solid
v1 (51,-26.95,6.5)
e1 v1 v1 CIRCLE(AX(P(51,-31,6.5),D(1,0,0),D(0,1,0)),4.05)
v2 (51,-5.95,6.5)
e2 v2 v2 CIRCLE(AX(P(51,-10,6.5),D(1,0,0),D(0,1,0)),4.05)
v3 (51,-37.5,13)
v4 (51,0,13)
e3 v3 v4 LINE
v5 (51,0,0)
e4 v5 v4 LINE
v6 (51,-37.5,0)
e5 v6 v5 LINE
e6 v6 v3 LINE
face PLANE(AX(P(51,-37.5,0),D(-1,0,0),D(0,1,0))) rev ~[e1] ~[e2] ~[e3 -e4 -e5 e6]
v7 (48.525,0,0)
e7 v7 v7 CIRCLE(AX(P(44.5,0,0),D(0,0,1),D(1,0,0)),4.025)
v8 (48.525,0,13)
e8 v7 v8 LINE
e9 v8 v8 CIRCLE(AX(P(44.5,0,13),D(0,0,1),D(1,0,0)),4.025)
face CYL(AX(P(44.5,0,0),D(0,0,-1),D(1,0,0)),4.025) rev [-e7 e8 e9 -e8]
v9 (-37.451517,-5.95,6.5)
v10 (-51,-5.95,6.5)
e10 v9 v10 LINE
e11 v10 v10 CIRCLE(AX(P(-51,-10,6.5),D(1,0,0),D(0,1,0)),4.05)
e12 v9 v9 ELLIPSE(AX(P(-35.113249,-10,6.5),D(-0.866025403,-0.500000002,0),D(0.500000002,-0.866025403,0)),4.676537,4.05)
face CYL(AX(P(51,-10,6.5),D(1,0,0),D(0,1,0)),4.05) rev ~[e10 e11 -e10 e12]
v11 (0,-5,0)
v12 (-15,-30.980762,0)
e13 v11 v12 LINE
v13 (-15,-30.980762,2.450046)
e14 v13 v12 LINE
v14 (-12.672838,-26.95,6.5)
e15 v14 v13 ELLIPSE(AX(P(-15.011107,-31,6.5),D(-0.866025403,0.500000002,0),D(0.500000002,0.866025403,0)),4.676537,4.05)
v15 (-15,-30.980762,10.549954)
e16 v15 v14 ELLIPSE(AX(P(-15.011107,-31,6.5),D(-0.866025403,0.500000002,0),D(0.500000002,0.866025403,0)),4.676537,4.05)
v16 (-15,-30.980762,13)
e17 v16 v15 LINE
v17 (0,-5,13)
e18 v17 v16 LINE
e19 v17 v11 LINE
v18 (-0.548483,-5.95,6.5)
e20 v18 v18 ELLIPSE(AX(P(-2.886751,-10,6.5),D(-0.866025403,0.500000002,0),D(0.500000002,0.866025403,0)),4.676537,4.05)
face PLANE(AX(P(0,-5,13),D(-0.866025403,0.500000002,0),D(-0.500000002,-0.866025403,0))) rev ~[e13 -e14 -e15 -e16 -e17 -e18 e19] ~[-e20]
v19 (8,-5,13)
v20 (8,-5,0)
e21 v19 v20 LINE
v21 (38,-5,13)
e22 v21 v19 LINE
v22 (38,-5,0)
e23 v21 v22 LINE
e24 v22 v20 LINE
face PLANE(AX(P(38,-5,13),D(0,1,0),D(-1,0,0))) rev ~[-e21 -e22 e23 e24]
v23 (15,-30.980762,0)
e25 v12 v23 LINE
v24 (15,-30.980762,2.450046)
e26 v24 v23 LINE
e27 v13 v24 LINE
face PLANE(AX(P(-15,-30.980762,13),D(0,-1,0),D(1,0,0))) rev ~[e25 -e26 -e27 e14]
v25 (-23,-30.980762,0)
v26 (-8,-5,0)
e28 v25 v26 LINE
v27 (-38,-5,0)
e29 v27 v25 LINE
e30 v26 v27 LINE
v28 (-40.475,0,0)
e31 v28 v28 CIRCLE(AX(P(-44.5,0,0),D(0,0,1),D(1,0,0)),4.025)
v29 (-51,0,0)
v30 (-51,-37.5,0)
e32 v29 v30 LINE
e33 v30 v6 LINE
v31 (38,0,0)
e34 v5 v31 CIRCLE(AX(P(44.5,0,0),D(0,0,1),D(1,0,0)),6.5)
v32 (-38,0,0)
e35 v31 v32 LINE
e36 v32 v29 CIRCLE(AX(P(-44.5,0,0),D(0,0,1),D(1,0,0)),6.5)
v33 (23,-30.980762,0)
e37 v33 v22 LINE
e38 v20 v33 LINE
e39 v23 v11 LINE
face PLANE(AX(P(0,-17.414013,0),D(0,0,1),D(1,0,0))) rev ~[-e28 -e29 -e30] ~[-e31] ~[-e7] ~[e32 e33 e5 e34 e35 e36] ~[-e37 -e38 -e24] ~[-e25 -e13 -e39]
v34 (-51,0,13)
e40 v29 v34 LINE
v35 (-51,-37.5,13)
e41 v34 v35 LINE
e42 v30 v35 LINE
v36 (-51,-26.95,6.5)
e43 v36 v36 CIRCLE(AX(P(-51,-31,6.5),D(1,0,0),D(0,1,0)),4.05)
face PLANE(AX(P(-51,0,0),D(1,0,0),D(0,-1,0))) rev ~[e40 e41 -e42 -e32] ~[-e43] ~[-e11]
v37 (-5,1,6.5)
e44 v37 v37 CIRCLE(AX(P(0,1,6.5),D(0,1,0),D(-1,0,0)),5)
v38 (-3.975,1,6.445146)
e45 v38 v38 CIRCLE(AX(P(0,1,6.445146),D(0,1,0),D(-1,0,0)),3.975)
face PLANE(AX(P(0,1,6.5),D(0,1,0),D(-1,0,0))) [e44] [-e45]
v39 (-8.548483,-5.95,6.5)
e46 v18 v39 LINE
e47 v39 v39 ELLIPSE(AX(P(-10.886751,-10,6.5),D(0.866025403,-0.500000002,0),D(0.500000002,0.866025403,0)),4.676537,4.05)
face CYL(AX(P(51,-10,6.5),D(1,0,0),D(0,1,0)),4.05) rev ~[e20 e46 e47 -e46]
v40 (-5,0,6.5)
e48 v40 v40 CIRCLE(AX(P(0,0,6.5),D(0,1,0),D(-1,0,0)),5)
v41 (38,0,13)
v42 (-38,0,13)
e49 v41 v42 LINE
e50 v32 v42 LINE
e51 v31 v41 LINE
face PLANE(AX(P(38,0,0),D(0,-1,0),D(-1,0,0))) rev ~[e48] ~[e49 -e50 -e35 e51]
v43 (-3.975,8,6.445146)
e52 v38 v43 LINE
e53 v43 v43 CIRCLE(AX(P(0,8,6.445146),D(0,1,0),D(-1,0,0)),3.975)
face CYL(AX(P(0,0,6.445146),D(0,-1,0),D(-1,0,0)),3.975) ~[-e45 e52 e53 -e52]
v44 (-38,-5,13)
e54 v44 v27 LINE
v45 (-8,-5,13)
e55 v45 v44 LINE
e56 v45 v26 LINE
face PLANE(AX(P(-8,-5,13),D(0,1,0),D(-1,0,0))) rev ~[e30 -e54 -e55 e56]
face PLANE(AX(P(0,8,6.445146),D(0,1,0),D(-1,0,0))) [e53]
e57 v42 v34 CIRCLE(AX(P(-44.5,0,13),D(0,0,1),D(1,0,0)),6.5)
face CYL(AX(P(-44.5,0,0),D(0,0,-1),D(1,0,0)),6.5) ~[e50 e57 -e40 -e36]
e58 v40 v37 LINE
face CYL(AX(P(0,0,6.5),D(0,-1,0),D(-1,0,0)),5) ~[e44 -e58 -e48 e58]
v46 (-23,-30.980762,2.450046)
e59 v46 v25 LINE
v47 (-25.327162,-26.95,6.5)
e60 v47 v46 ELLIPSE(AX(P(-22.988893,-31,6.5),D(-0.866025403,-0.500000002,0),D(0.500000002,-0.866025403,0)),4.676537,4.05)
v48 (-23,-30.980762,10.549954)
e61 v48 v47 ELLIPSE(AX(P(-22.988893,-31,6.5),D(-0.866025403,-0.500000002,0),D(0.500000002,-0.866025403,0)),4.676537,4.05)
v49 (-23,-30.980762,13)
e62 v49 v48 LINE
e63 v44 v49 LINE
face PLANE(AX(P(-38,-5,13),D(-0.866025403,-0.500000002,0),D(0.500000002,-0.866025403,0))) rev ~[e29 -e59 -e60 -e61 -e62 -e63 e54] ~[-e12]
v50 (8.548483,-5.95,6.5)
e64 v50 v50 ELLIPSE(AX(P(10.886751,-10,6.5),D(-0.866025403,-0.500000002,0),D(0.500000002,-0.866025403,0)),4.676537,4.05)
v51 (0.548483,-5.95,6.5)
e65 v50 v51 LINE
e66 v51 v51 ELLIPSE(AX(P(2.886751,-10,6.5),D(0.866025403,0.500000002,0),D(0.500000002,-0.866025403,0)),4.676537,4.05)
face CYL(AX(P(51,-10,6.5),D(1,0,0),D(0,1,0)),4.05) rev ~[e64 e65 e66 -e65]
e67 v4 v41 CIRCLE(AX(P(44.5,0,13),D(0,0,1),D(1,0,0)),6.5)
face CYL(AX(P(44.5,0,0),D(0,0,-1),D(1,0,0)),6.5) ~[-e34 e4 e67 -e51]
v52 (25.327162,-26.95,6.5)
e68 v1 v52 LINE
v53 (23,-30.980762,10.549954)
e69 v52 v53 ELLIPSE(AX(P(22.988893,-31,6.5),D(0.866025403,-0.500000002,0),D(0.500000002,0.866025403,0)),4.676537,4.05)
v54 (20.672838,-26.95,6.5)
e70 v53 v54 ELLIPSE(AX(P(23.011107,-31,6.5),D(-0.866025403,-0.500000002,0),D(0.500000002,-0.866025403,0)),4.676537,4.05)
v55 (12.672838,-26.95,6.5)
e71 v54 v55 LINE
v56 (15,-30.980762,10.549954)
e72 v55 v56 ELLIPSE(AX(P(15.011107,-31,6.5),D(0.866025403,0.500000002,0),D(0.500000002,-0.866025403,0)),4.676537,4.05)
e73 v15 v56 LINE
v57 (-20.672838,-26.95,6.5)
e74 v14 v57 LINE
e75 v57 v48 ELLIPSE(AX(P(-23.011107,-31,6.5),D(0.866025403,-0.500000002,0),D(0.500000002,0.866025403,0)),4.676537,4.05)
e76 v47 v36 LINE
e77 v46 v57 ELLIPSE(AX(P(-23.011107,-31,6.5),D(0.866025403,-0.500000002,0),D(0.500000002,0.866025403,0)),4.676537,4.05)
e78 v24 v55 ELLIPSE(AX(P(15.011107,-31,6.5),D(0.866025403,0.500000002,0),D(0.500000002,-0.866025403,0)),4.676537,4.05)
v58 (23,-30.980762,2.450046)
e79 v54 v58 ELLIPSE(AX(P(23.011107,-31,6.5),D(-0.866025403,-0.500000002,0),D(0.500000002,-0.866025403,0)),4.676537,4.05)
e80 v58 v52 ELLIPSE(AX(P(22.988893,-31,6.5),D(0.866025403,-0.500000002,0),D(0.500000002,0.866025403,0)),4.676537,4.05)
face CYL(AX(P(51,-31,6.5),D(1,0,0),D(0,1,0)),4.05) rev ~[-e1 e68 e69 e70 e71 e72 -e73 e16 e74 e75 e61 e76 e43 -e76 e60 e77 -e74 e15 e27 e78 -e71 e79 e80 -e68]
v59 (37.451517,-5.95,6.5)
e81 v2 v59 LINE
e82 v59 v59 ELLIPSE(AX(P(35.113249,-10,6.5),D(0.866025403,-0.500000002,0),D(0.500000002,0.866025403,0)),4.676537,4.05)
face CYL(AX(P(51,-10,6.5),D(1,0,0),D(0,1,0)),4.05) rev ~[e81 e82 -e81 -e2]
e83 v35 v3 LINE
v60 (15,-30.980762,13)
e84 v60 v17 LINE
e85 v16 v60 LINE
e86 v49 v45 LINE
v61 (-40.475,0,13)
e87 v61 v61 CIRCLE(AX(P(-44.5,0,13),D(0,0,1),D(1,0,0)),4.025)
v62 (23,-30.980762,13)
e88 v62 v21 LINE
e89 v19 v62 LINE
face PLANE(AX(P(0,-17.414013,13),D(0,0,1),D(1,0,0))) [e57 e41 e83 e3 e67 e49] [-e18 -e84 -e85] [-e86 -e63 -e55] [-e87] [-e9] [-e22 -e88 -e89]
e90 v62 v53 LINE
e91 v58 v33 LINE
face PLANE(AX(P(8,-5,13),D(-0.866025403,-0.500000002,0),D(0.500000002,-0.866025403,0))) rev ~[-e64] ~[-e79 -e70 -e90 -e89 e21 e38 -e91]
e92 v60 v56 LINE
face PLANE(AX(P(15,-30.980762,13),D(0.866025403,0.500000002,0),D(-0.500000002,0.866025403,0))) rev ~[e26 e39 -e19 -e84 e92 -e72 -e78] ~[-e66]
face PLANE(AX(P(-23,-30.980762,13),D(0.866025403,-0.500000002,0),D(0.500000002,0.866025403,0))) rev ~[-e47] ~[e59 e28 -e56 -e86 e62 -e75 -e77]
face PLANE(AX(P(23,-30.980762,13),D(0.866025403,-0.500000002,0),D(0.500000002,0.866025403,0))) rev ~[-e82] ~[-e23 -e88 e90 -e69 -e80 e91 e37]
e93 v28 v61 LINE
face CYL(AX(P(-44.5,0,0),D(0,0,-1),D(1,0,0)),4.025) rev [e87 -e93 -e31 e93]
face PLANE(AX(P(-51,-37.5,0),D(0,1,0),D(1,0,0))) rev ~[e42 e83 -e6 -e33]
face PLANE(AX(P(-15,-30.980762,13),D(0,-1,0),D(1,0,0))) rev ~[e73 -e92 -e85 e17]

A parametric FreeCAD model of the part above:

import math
import FreeCAD as App
import Part
import Sketcher
Q = App.Units.Quantity

doc = App.newDocument("Part")
body = doc.addObject("PartDesign::Body", "Body")

# Sketch on XY plane
sketch1 = doc.addObject("Sketcher::SketchObject", "Sketch")
body.addObject(sketch1)
sketch1.AttachmentSupport = (doc.XY_Plane, [""])
sketch1.MapMode = "FlatFace"
sketch1.addGeometry(Part.LineSegment(App.Vector(38, 0, 0), App.Vector(-38, 0, 0)), False)
sketch1.addGeometry(Part.ArcOfCircle(Part.Circle(App.Vector(-44.5, 0, 0), App.Vector(0, 0, 1), 6.5), math.radians(0), math.radians(180)), False)
sketch1.addGeometry(Part.LineSegment(App.Vector(-51, 0, 0), App.Vector(-51, -37.5, 0)), False)
sketch1.addGeometry(Part.LineSegment(App.Vector(-51, -37.5, 0), App.Vector(51, -37.5, 0)), False)
sketch1.addGeometry(Part.LineSegment(App.Vector(51, -37.5, 0), App.Vector(51, 0, 0)), False)
sketch1.addGeometry(Part.ArcOfCircle(Part.Circle(App.Vector(44.5, 0, 0), App.Vector(0, 0, 1), 6.5), math.radians(0), math.radians(180)), False)
sketch1.addGeometry(Part.Circle(App.Vector(-44.5, 0, 0), App.Vector(0, 0, 1), 4), False)
sketch1.addGeometry(Part.Circle(App.Vector(44.5, 0, 0), App.Vector(0, 0, 1), 4), False)
sketch1.addConstraint(Sketcher.Constraint("Coincident", 0, 2, 1, 1))
sketch1.addConstraint(Sketcher.Constraint("Tangent", 1, 2, 2, 1))
sketch1.addConstraint(Sketcher.Constraint("Coincident", 2, 2, 3, 1))
sketch1.addConstraint(Sketcher.Constraint("Coincident", 3, 2, 4, 1))
sketch1.addConstraint(Sketcher.Constraint("Tangent", 4, 2, 5, 1))
sketch1.addConstraint(Sketcher.Constraint("Coincident", 5, 2, 0, 1))
sketch1.addConstraint(Sketcher.Constraint("Horizontal", 0))
sketch1.addConstraint(Sketcher.Constraint("Vertical", 2))
sketch1.addConstraint(Sketcher.Constraint("Horizontal", 3))
sketch1.addConstraint(Sketcher.Constraint("Vertical", 4))
sketch1.addConstraint(Sketcher.Constraint("Coincident", 6, 3, 1, 3))
sketch1.addConstraint(Sketcher.Constraint("Coincident", 7, 3, 5, 3))
sketch1.addConstraint(Sketcher.Constraint("Equal", 1, 5))
sketch1.addConstraint(Sketcher.Constraint("Equal", 6, 7))
sketch1.addConstraint(Sketcher.Constraint("Symmetric", 1, 3, 5, 3, -1, 1))
sketch1.addConstraint(Sketcher.Constraint("PointOnObject", 1, 3, -1))
sketch1.addConstraint(Sketcher.Constraint("PointOnObject", 0, 2, -1))
sketch1.addConstraint(Sketcher.Constraint("Radius", 1, 6.5))
sketch1.addConstraint(Sketcher.Constraint("Diameter", 6, 8.05))
sketch1.addConstraint(Sketcher.Constraint("DistanceX", 0, 2, 0, 1, 76.0))
sketch1.addConstraint(Sketcher.Constraint("DistanceY", 2, 2, 2, 1, 37.5))
pad1 = doc.addObject("PartDesign::Pad", "Pad")
body.addObject(pad1)
pad1.Profile = sketch1
pad1.Length = 13

# Sketch on YZ plane
sketch2 = doc.addObject("Sketcher::SketchObject", "Sketch001")
body.addObject(sketch2)
sketch2.AttachmentSupport = (doc.YZ_Plane, [""])
sketch2.MapMode = "FlatFace"
sketch2.AttachmentOffset = App.Placement(App.Vector(0, 0, 51), App.Rotation())
sketch2.addGeometry(Part.Circle(App.Vector(-10, 6.5, 0), App.Vector(0, 0, 1), 4), False)
sketch2.addGeometry(Part.Circle(App.Vector(-31, 6.5, 0), App.Vector(0, 0, 1), 4), False)
sketch2.addConstraint(Sketcher.Constraint("Equal", 0, 1))
sketch2.addConstraint(Sketcher.Constraint("Horizontal", 0, 3, 1, 3))
sketch2.addConstraint(Sketcher.Constraint("Diameter", 0, 8.1))
sketch2.addConstraint(Sketcher.Constraint("DistanceX", 0, 3, -1, 1, 10.0))
sketch2.addConstraint(Sketcher.Constraint("DistanceX", 1, 3, -1, 1, 31.0))
sketch2.addConstraint(Sketcher.Constraint("DistanceY", -1, 1, 0, 3, 6.5))
pocket1 = doc.addObject("PartDesign::Pocket", "Pocket")
body.addObject(pocket1)
pocket1.Profile = sketch2
pocket1.Length = 200

# Sketch on XY plane
sketch3 = doc.addObject("Sketcher::SketchObject", "Sketch002")
body.addObject(sketch3)
sketch3.AttachmentSupport = (doc.XY_Plane, [""])
sketch3.MapMode = "FlatFace"
sketch3.AttachmentOffset = App.Placement(App.Vector(0, 0, 13), App.Rotation())
sketch3.addGeometry(Part.LineSegment(App.Vector(-23, -31, 0), App.Vector(-8, -5, 0)), False)
sketch3.addGeometry(Part.LineSegment(App.Vector(-8, -5, 0), App.Vector(-38, -5, 0)), False)
sketch3.addGeometry(Part.LineSegment(App.Vector(-38, -5, 0), App.Vector(-23, -31, 0)), False)
sketch3.addGeometry(Part.LineSegment(App.Vector(15, -31, 0), App.Vector(0, -5, 0)), False)
sketch3.addGeometry(Part.LineSegment(App.Vector(0, -5, 0), App.Vector(-15, -31, 0)), False)
sketch3.addGeometry(Part.LineSegment(App.Vector(-15, -31, 0), App.Vector(15, -31, 0)), False)
sketch3.addGeometry(Part.LineSegment(App.Vector(23, -31, 0), App.Vector(38, -5, 0)), False)
sketch3.addGeometry(Part.LineSegment(App.Vector(38, -5, 0), App.Vector(8, -5, 0)), False)
sketch3.addGeometry(Part.LineSegment(App.Vector(8, -5, 0), App.Vector(23, -31, 0)), False)
sketch3.addConstraint(Sketcher.Constraint("Coincident", 0, 2, 1, 1))
sketch3.addConstraint(Sketcher.Constraint("Coincident", 1, 2, 2, 1))
sketch3.addConstraint(Sketcher.Constraint("Coincident", 2, 2, 0, 1))
sketch3.addConstraint(Sketcher.Constraint("Coincident", 3, 2, 4, 1))
sketch3.addConstraint(Sketcher.Constraint("Coincident", 4, 2, 5, 1))
sketch3.addConstraint(Sketcher.Constraint("Coincident", 5, 2, 3, 1))
sketch3.addConstraint(Sketcher.Constraint("Coincident", 6, 2, 7, 1))
sketch3.addConstraint(Sketcher.Constraint("Coincident", 7, 2, 8, 1))
sketch3.addConstraint(Sketcher.Constraint("Coincident", 8, 2, 6, 1))
sketch3.addConstraint(Sketcher.Constraint("Horizontal", 1))
sketch3.addConstraint(Sketcher.Constraint("Horizontal", 5))
sketch3.addConstraint(Sketcher.Constraint("Horizontal", 7))
sketch3.addConstraint(Sketcher.Constraint("Symmetric", 1, 2, 6, 2, -2))
sketch3.addConstraint(Sketcher.Constraint("Symmetric", 2, 2, 8, 2, -2))
sketch3.addConstraint(Sketcher.Constraint("PointOnObject", 3, 2, -2))
sketch3.addConstraint(Sketcher.Constraint("Parallel", 2, 3))
sketch3.addConstraint(Sketcher.Constraint("Parallel", 0, 4))
sketch3.addConstraint(Sketcher.Constraint("Parallel", 4, 6))
sketch3.addConstraint(Sketcher.Constraint("Parallel", 3, 8))
sketch3.addConstraint(Sketcher.Constraint("Horizontal", 1, 2, 3, 2))
sketch3.addConstraint(Sketcher.Constraint("Horizontal", 2, 2, 4, 2))
sketch3.addConstraint(Sketcher.Constraint("DistanceX", 1, 2, 1, 1, 30.0))
sketch3.addConstraint(Sketcher.Constraint("Angle", 0, Q("60 deg")))
sketch3.addConstraint(Sketcher.Constraint("DistanceX", 0, 2, -1, 1, 8.0))
sketch3.addConstraint(Sketcher.Constraint("DistanceY", 0, 2, -1, 1, 5.0))
pocket2 = doc.addObject("PartDesign::Pocket", "Pocket001")
body.addObject(pocket2)
pocket2.Profile = sketch3
pocket2.Length = 25

# Sketch on XZ plane
sketch4 = doc.addObject("Sketcher::SketchObject", "Sketch003")
body.addObject(sketch4)
sketch4.AttachmentSupport = (doc.XZ_Plane, [""])
sketch4.MapMode = "FlatFace"
sketch4.addGeometry(Part.Circle(App.Vector(0, 6.5, 0), App.Vector(0, 0, 1), 5), False)
sketch4.addGeometry(Part.Circle(App.Vector(0, 6.4, 0), App.Vector(0, 0, 1), 4), False)
sketch4.addConstraint(Sketcher.Constraint("PointOnObject", 0, 3, -2))
sketch4.addConstraint(Sketcher.Constraint("PointOnObject", 1, 3, -2))
sketch4.addConstraint(Sketcher.Constraint("Diameter", 0, 10.0))
sketch4.addConstraint(Sketcher.Constraint("Diameter", 1, 7.95))
sketch4.addConstraint(Sketcher.Constraint("DistanceY", -1, 1, 0, 3, 6.5))
sketch4.addConstraint(Sketcher.Constraint("DistanceY", -1, 1, 1, 3, 6.445146))
pad2 = doc.addObject("PartDesign::Pad", "Pad001")
body.addObject(pad2)
pad2.Profile = sketch4
pad2.Length = 1
pad2.Reversed = True

# Sketch on XZ plane
sketch5 = doc.addObject("Sketcher::SketchObject", "Sketch004")
body.addObject(sketch5)
sketch5.AttachmentSupport = (doc.XZ_Plane, [""])
sketch5.MapMode = "FlatFace"
sketch5.addGeometry(Part.Circle(App.Vector(0, 6.4, 0), App.Vector(0, 0, 1), 4), False)
sketch5.addConstraint(Sketcher.Constraint("PointOnObject", 0, 3, -2))
sketch5.addConstraint(Sketcher.Constraint("Diameter", 0, 7.95))
sketch5.addConstraint(Sketcher.Constraint("DistanceY", -1, 1, 0, 3, 6.445146))
pad3 = doc.addObject("PartDesign::Pad", "Pad002")
body.addObject(pad3)
pad3.Profile = sketch5
pad3.Length = 8
pad3.Reversed = True

doc.recompute()
